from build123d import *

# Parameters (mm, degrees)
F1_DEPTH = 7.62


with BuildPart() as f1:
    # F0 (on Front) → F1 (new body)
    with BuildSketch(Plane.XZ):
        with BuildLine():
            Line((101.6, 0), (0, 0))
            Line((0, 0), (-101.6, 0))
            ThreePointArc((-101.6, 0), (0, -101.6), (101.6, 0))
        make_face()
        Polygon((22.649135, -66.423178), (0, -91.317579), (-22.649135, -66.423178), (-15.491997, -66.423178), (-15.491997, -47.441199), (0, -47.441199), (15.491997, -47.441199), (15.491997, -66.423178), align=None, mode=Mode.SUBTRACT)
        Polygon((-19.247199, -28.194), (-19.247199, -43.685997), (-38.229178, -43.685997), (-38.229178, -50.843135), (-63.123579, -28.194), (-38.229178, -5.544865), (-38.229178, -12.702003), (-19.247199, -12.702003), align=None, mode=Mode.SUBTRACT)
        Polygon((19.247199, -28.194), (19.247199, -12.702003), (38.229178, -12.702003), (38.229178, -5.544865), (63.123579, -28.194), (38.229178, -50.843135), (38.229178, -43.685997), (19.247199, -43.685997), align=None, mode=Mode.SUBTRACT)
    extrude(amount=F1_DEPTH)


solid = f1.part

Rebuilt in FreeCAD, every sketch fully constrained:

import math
import FreeCAD as App
import Part
import Sketcher

V = App.Vector
Q = App.Units.Quantity


def add_polygon(sketch, points):
    """Adds a closed chain of lines whose ends are joined by coincident constraints."""
    first, n = sketch.GeometryCount, len(points)
    for a, b in zip(points, points[1:] + points[:1]):
        sketch.addGeometry(Part.LineSegment(App.Vector(*a, 0), App.Vector(*b, 0)), False)
    for i in range(n):
        sketch.addConstraint(Sketcher.Constraint("Coincident", first + i, 2, first + (i + 1) % n, 1))

doc = App.newDocument("Part")
params = doc.addObject("Spreadsheet::Sheet", "Params")
for row, (alias, value) in enumerate([
    ("sketch1_radius", "4 in"),
    ("pad1_length", "0.3 in"),
], start=1):
    params.set(f"A{row}", alias)
    params.set(f"B{row}", "=" + value)
    params.setAlias(f"B{row}", alias)

body = doc.addObject("PartDesign::Body", "Body")

# Sketch on XZ plane
sketch1 = body.newObject("Sketcher::SketchObject", "Sketch")
sketch1.AttachmentSupport = (doc.getObject("XZ_Plane"), [""])
sketch1.MapMode = "FlatFace"
sketch1.addGeometry(Part.LineSegment(V(102, 0, 0), V(-102, 0, 0)), False)  # 0
sketch1.addGeometry(Part.ArcOfCircle(Part.Circle(V(0, 0, 0), V(0, 0, 1), 102), math.radians(180), math.radians(360)), False)  # 1
add_polygon(sketch1, [(15, -66), (23, -66), (0, -91), (-23, -66), (-15, -66), (-15, -47), (15, -47)])  # lines 2-8
add_polygon(sketch1, [(-19, -13), (-19, -44), (-38, -44), (-38, -51), (-63, -28), (-38, -6), (-38, -13)])  # lines 9-15
add_polygon(sketch1, [(19, -44), (19, -13), (38, -13), (38, -6), (63, -28), (38, -51), (38, -44)])  # lines 16-22
sketch1.addConstraint([
    Sketcher.Constraint("Coincident", 0, 1, 1, 2),
    Sketcher.Constraint("Coincident", 1, 1, 0, 2),
    Sketcher.Constraint("Horizontal", 0),
    Sketcher.Constraint("Horizontal", 2),
    Sketcher.Constraint("Horizontal", 5),
    Sketcher.Constraint("Vertical", 6),
    Sketcher.Constraint("Horizontal", 7),
    Sketcher.Constraint("Vertical", 8),
    Sketcher.Constraint("Vertical", 9),
    Sketcher.Constraint("Horizontal", 10),
    Sketcher.Constraint("Vertical", 11),
    Sketcher.Constraint("Vertical", 14),
    Sketcher.Constraint("Horizontal", 15),
    Sketcher.Constraint("Vertical", 16),
    Sketcher.Constraint("Horizontal", 17),
    Sketcher.Constraint("Vertical", 18),
    Sketcher.Constraint("Vertical", 21),
    Sketcher.Constraint("Horizontal", 22),
    Sketcher.Constraint("Coincident", 1, 3, -1, 1),
    Sketcher.Constraint("Symmetric", 2, 2, 4, 2, -2),
    Sketcher.Constraint("Symmetric", 15, 2, 16, 2, -2),
    Sketcher.Constraint("Symmetric", 13, 2, 18, 2, -2),
    Sketcher.Constraint("Symmetric", 12, 2, 19, 2, -2),
    Sketcher.Constraint("Symmetric", 11, 2, 20, 2, -2),
    Sketcher.Constraint("PointOnObject", 0, 1, -1),
    Sketcher.Constraint("PointOnObject", 3, 2, -2),
    Sketcher.Constraint("Perpendicular", 3, 12),
    Sketcher.Constraint("Perpendicular", 4, 13),
    Sketcher.Constraint("Horizontal", 10, 2, 21, 2),
    Sketcher.Constraint("Vertical", 11, 2, 13, 2),
    Sketcher.Constraint("Equal", 2, 5),
    Sketcher.Constraint("Equal", 22, 6),
    Sketcher.Constraint("Equal", 7, 9),
    Sketcher.Constraint("Equal", 5, 11),
    Sketcher.Constraint("Equal", 11, 14),
    Sketcher.Constraint("Radius", 1, Q("4 in")),
    Sketcher.Constraint("DistanceY", 12, 2, -1, 1, Q("1.11 in")),
    Sketcher.Constraint("DistanceX", 2, 1, 2, 2, 7.157138),
    Sketcher.Constraint("DistanceX", 10, 2, 10, 1, 18.981979),
    Sketcher.Constraint("DistanceY", 6, 2, -1, 1, 47.441199),
    Sketcher.Constraint("DistanceX", 9, 2, -1, 1, 19.247199),
    Sketcher.Constraint("DistanceY", 3, 2, 2, 2, 24.894401),
    Sketcher.Constraint("DistanceX", 9, 2, 6, 2, 3.755202),
])
sketch1.setExpression("Constraints[56]", "Params.sketch1_radius")
pad1 = body.newObject("PartDesign::Pad", "Pad")
pad1.Profile = sketch1
pad1.setExpression("Length", "Params.pad1_length")

doc.recompute()
